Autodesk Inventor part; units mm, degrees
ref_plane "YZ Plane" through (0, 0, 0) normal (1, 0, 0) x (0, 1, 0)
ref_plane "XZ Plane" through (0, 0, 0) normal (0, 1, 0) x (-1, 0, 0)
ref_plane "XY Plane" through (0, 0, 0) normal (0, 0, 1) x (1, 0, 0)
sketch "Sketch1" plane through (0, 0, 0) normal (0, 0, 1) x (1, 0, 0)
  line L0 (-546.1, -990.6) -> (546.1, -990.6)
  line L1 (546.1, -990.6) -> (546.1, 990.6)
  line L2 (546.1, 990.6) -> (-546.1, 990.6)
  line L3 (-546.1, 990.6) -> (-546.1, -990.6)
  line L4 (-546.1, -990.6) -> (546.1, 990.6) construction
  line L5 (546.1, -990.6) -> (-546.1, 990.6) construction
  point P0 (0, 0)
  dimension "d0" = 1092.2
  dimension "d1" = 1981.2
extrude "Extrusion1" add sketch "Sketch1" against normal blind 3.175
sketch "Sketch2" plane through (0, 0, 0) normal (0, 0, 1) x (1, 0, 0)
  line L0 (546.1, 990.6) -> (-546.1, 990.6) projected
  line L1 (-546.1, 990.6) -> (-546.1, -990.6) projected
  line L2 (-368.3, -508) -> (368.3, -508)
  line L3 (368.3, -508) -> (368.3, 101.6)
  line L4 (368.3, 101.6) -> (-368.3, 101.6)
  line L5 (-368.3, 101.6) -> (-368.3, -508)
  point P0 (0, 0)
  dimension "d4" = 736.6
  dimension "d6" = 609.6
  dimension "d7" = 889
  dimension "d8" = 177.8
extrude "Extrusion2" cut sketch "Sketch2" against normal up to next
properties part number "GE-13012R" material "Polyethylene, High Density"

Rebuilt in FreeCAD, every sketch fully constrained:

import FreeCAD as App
import Part
import Sketcher
Q = App.Units.Quantity


def add_polygon(sketch, points):
    """Adds a closed chain of lines whose ends are joined by coincident constraints."""
    first, n = sketch.GeometryCount, len(points)
    for a, b in zip(points, points[1:] + points[:1]):
        sketch.addGeometry(Part.LineSegment(App.Vector(*a, 0), App.Vector(*b, 0)), False)
    for i in range(n):
        sketch.addConstraint(Sketcher.Constraint("Coincident", first + i, 2, first + (i + 1) % n, 1))

doc = App.newDocument("Part")
body = doc.addObject("PartDesign::Body", "Body")

sketch1 = body.newObject("Sketcher::SketchObject", "Sketch")
sketch1.AttachmentSupport = (doc.getObject("XY_Plane"), [""])
sketch1.MapMode = "FlatFace"
add_polygon(sketch1, [(-546, 991), (-546, -991), (546, -991), (546, 991)])
sketch1.addConstraint([
    Sketcher.Constraint("Vertical", 0),
    Sketcher.Constraint("Horizontal", 1),
    Sketcher.Constraint("Vertical", 2),
    Sketcher.Constraint("Horizontal", 3),
    Sketcher.Constraint("Symmetric", 0, 2, 2, 2, -1, 1),
    Sketcher.Constraint("DistanceX", 1, 1, 1, 2, Q("43 in")),
    Sketcher.Constraint("DistanceY", 0, 2, 0, 1, Q("78 in")),
])
pad1 = body.newObject("PartDesign::Pad", "Pad")
pad1.Profile = sketch1
pad1.Length = Q("0.125 in")
pad1.Reversed = True

sketch2 = body.newObject("Sketcher::SketchObject", "Sketch001")
sketch2.AttachmentSupport = (doc.getObject("XY_Plane"), [""])
sketch2.MapMode = "FlatFace"
add_polygon(sketch2, [(-368, 102), (-368, -508), (368, -508), (368, 102)])
sketch2.addConstraint([
    Sketcher.Constraint("Vertical", 0),
    Sketcher.Constraint("Horizontal", 1),
    Sketcher.Constraint("Vertical", 2),
    Sketcher.Constraint("Horizontal", 3),
    Sketcher.Constraint("DistanceX", 1, 1, 1, 2, Q("29 in")),
    Sketcher.Constraint("DistanceY", 0, 2, 0, 1, Q("24 in")),
    Sketcher.Constraint("DistanceY", 0, 2, -1, 1, Q("20 in")),
    Sketcher.Constraint("DistanceX", 0, 2, -1, 1, Q("14.5 in")),
])
pocket1 = body.newObject("PartDesign::Pocket", "Pocket")
pocket1.Profile = sketch2
pocket1.Type = "UpToFirst"

doc.recompute()
